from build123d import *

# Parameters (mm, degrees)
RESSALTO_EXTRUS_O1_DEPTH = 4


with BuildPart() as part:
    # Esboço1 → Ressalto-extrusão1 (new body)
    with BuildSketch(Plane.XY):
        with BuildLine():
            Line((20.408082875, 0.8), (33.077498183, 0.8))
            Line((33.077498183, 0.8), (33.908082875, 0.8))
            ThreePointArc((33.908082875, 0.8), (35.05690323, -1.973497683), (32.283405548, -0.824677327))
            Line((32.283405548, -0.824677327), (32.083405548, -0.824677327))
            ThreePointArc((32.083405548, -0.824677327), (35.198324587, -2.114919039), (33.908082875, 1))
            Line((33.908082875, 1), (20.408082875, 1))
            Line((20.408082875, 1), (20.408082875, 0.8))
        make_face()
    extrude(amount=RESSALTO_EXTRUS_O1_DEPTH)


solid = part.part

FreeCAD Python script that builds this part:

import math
import FreeCAD as App
import Part
import Sketcher
from FreeCAD import Vector

doc = App.newDocument("Part")
body = doc.addObject("PartDesign::Body", "Body")

# Sketch on XY plane
sketch1 = body.newObject("Sketcher::SketchObject", "Sketch")
sketch1.AttachmentSupport = (doc.getObject("XY_Plane"), [""])
sketch1.MapMode = "FlatFace"
sketch1.addGeometry(Part.LineSegment(Vector(20.41, 0.8, 0), Vector(33.91, 0.8, 0)), False)
sketch1.addGeometry(Part.ArcOfCircle(Part.Circle(Vector(33.91, -0.82, 0), Vector(0, 0, 1), 1.62), math.radians(180), math.radians(450)), False)
sketch1.addGeometry(Part.LineSegment(Vector(32.28, -0.82, 0), Vector(32.08, -0.82, 0)), False)
sketch1.addGeometry(Part.ArcOfCircle(Part.Circle(Vector(33.91, -0.82, 0), Vector(0, 0, 1), 1.82), math.radians(180), math.radians(450)), False)
sketch1.addGeometry(Part.LineSegment(Vector(33.91, 1, 0), Vector(20.41, 1, 0)), False)
sketch1.addGeometry(Part.LineSegment(Vector(20.41, 1, 0), Vector(20.41, 0.8, 0)), False)
sketch1.addConstraint(Sketcher.Constraint("Tangent", 0, 2, 1, 2))
sketch1.addConstraint(Sketcher.Constraint("Coincident", 1, 1, 2, 1))
sketch1.addConstraint(Sketcher.Constraint("Coincident", 2, 2, 3, 1))
sketch1.addConstraint(Sketcher.Constraint("Tangent", 3, 2, 4, 1))
sketch1.addConstraint(Sketcher.Constraint("Coincident", 4, 2, 5, 1))
sketch1.addConstraint(Sketcher.Constraint("Coincident", 5, 2, 0, 1))
sketch1.addConstraint(Sketcher.Constraint("Horizontal", 0))
sketch1.addConstraint(Sketcher.Constraint("Horizontal", 2))
sketch1.addConstraint(Sketcher.Constraint("Horizontal", 4))
sketch1.addConstraint(Sketcher.Constraint("Vertical", 5))
sketch1.addConstraint(Sketcher.Constraint("Coincident", 3, 3, 1, 3))
sketch1.addConstraint(Sketcher.Constraint("Horizontal", 3, 3, 1, 1))
sketch1.addConstraint(Sketcher.Constraint("DistanceX", 0, 1, 0, 2, 13.5))
sketch1.addConstraint(Sketcher.Constraint("DistanceX", 2, 2, 2, 1, 0.2))
sketch1.addConstraint(Sketcher.Constraint("DistanceY", -1, 1, 3, 2, 1.0))
sketch1.addConstraint(Sketcher.Constraint("Radius", 1, 1.624677))
sketch1.addConstraint(Sketcher.Constraint("DistanceX", -1, 1, 1, 3, 33.908083))
pad1 = body.newObject("PartDesign::Pad", "Pad")
pad1.Profile = sketch1
pad1.Length = 4

doc.recompute()
